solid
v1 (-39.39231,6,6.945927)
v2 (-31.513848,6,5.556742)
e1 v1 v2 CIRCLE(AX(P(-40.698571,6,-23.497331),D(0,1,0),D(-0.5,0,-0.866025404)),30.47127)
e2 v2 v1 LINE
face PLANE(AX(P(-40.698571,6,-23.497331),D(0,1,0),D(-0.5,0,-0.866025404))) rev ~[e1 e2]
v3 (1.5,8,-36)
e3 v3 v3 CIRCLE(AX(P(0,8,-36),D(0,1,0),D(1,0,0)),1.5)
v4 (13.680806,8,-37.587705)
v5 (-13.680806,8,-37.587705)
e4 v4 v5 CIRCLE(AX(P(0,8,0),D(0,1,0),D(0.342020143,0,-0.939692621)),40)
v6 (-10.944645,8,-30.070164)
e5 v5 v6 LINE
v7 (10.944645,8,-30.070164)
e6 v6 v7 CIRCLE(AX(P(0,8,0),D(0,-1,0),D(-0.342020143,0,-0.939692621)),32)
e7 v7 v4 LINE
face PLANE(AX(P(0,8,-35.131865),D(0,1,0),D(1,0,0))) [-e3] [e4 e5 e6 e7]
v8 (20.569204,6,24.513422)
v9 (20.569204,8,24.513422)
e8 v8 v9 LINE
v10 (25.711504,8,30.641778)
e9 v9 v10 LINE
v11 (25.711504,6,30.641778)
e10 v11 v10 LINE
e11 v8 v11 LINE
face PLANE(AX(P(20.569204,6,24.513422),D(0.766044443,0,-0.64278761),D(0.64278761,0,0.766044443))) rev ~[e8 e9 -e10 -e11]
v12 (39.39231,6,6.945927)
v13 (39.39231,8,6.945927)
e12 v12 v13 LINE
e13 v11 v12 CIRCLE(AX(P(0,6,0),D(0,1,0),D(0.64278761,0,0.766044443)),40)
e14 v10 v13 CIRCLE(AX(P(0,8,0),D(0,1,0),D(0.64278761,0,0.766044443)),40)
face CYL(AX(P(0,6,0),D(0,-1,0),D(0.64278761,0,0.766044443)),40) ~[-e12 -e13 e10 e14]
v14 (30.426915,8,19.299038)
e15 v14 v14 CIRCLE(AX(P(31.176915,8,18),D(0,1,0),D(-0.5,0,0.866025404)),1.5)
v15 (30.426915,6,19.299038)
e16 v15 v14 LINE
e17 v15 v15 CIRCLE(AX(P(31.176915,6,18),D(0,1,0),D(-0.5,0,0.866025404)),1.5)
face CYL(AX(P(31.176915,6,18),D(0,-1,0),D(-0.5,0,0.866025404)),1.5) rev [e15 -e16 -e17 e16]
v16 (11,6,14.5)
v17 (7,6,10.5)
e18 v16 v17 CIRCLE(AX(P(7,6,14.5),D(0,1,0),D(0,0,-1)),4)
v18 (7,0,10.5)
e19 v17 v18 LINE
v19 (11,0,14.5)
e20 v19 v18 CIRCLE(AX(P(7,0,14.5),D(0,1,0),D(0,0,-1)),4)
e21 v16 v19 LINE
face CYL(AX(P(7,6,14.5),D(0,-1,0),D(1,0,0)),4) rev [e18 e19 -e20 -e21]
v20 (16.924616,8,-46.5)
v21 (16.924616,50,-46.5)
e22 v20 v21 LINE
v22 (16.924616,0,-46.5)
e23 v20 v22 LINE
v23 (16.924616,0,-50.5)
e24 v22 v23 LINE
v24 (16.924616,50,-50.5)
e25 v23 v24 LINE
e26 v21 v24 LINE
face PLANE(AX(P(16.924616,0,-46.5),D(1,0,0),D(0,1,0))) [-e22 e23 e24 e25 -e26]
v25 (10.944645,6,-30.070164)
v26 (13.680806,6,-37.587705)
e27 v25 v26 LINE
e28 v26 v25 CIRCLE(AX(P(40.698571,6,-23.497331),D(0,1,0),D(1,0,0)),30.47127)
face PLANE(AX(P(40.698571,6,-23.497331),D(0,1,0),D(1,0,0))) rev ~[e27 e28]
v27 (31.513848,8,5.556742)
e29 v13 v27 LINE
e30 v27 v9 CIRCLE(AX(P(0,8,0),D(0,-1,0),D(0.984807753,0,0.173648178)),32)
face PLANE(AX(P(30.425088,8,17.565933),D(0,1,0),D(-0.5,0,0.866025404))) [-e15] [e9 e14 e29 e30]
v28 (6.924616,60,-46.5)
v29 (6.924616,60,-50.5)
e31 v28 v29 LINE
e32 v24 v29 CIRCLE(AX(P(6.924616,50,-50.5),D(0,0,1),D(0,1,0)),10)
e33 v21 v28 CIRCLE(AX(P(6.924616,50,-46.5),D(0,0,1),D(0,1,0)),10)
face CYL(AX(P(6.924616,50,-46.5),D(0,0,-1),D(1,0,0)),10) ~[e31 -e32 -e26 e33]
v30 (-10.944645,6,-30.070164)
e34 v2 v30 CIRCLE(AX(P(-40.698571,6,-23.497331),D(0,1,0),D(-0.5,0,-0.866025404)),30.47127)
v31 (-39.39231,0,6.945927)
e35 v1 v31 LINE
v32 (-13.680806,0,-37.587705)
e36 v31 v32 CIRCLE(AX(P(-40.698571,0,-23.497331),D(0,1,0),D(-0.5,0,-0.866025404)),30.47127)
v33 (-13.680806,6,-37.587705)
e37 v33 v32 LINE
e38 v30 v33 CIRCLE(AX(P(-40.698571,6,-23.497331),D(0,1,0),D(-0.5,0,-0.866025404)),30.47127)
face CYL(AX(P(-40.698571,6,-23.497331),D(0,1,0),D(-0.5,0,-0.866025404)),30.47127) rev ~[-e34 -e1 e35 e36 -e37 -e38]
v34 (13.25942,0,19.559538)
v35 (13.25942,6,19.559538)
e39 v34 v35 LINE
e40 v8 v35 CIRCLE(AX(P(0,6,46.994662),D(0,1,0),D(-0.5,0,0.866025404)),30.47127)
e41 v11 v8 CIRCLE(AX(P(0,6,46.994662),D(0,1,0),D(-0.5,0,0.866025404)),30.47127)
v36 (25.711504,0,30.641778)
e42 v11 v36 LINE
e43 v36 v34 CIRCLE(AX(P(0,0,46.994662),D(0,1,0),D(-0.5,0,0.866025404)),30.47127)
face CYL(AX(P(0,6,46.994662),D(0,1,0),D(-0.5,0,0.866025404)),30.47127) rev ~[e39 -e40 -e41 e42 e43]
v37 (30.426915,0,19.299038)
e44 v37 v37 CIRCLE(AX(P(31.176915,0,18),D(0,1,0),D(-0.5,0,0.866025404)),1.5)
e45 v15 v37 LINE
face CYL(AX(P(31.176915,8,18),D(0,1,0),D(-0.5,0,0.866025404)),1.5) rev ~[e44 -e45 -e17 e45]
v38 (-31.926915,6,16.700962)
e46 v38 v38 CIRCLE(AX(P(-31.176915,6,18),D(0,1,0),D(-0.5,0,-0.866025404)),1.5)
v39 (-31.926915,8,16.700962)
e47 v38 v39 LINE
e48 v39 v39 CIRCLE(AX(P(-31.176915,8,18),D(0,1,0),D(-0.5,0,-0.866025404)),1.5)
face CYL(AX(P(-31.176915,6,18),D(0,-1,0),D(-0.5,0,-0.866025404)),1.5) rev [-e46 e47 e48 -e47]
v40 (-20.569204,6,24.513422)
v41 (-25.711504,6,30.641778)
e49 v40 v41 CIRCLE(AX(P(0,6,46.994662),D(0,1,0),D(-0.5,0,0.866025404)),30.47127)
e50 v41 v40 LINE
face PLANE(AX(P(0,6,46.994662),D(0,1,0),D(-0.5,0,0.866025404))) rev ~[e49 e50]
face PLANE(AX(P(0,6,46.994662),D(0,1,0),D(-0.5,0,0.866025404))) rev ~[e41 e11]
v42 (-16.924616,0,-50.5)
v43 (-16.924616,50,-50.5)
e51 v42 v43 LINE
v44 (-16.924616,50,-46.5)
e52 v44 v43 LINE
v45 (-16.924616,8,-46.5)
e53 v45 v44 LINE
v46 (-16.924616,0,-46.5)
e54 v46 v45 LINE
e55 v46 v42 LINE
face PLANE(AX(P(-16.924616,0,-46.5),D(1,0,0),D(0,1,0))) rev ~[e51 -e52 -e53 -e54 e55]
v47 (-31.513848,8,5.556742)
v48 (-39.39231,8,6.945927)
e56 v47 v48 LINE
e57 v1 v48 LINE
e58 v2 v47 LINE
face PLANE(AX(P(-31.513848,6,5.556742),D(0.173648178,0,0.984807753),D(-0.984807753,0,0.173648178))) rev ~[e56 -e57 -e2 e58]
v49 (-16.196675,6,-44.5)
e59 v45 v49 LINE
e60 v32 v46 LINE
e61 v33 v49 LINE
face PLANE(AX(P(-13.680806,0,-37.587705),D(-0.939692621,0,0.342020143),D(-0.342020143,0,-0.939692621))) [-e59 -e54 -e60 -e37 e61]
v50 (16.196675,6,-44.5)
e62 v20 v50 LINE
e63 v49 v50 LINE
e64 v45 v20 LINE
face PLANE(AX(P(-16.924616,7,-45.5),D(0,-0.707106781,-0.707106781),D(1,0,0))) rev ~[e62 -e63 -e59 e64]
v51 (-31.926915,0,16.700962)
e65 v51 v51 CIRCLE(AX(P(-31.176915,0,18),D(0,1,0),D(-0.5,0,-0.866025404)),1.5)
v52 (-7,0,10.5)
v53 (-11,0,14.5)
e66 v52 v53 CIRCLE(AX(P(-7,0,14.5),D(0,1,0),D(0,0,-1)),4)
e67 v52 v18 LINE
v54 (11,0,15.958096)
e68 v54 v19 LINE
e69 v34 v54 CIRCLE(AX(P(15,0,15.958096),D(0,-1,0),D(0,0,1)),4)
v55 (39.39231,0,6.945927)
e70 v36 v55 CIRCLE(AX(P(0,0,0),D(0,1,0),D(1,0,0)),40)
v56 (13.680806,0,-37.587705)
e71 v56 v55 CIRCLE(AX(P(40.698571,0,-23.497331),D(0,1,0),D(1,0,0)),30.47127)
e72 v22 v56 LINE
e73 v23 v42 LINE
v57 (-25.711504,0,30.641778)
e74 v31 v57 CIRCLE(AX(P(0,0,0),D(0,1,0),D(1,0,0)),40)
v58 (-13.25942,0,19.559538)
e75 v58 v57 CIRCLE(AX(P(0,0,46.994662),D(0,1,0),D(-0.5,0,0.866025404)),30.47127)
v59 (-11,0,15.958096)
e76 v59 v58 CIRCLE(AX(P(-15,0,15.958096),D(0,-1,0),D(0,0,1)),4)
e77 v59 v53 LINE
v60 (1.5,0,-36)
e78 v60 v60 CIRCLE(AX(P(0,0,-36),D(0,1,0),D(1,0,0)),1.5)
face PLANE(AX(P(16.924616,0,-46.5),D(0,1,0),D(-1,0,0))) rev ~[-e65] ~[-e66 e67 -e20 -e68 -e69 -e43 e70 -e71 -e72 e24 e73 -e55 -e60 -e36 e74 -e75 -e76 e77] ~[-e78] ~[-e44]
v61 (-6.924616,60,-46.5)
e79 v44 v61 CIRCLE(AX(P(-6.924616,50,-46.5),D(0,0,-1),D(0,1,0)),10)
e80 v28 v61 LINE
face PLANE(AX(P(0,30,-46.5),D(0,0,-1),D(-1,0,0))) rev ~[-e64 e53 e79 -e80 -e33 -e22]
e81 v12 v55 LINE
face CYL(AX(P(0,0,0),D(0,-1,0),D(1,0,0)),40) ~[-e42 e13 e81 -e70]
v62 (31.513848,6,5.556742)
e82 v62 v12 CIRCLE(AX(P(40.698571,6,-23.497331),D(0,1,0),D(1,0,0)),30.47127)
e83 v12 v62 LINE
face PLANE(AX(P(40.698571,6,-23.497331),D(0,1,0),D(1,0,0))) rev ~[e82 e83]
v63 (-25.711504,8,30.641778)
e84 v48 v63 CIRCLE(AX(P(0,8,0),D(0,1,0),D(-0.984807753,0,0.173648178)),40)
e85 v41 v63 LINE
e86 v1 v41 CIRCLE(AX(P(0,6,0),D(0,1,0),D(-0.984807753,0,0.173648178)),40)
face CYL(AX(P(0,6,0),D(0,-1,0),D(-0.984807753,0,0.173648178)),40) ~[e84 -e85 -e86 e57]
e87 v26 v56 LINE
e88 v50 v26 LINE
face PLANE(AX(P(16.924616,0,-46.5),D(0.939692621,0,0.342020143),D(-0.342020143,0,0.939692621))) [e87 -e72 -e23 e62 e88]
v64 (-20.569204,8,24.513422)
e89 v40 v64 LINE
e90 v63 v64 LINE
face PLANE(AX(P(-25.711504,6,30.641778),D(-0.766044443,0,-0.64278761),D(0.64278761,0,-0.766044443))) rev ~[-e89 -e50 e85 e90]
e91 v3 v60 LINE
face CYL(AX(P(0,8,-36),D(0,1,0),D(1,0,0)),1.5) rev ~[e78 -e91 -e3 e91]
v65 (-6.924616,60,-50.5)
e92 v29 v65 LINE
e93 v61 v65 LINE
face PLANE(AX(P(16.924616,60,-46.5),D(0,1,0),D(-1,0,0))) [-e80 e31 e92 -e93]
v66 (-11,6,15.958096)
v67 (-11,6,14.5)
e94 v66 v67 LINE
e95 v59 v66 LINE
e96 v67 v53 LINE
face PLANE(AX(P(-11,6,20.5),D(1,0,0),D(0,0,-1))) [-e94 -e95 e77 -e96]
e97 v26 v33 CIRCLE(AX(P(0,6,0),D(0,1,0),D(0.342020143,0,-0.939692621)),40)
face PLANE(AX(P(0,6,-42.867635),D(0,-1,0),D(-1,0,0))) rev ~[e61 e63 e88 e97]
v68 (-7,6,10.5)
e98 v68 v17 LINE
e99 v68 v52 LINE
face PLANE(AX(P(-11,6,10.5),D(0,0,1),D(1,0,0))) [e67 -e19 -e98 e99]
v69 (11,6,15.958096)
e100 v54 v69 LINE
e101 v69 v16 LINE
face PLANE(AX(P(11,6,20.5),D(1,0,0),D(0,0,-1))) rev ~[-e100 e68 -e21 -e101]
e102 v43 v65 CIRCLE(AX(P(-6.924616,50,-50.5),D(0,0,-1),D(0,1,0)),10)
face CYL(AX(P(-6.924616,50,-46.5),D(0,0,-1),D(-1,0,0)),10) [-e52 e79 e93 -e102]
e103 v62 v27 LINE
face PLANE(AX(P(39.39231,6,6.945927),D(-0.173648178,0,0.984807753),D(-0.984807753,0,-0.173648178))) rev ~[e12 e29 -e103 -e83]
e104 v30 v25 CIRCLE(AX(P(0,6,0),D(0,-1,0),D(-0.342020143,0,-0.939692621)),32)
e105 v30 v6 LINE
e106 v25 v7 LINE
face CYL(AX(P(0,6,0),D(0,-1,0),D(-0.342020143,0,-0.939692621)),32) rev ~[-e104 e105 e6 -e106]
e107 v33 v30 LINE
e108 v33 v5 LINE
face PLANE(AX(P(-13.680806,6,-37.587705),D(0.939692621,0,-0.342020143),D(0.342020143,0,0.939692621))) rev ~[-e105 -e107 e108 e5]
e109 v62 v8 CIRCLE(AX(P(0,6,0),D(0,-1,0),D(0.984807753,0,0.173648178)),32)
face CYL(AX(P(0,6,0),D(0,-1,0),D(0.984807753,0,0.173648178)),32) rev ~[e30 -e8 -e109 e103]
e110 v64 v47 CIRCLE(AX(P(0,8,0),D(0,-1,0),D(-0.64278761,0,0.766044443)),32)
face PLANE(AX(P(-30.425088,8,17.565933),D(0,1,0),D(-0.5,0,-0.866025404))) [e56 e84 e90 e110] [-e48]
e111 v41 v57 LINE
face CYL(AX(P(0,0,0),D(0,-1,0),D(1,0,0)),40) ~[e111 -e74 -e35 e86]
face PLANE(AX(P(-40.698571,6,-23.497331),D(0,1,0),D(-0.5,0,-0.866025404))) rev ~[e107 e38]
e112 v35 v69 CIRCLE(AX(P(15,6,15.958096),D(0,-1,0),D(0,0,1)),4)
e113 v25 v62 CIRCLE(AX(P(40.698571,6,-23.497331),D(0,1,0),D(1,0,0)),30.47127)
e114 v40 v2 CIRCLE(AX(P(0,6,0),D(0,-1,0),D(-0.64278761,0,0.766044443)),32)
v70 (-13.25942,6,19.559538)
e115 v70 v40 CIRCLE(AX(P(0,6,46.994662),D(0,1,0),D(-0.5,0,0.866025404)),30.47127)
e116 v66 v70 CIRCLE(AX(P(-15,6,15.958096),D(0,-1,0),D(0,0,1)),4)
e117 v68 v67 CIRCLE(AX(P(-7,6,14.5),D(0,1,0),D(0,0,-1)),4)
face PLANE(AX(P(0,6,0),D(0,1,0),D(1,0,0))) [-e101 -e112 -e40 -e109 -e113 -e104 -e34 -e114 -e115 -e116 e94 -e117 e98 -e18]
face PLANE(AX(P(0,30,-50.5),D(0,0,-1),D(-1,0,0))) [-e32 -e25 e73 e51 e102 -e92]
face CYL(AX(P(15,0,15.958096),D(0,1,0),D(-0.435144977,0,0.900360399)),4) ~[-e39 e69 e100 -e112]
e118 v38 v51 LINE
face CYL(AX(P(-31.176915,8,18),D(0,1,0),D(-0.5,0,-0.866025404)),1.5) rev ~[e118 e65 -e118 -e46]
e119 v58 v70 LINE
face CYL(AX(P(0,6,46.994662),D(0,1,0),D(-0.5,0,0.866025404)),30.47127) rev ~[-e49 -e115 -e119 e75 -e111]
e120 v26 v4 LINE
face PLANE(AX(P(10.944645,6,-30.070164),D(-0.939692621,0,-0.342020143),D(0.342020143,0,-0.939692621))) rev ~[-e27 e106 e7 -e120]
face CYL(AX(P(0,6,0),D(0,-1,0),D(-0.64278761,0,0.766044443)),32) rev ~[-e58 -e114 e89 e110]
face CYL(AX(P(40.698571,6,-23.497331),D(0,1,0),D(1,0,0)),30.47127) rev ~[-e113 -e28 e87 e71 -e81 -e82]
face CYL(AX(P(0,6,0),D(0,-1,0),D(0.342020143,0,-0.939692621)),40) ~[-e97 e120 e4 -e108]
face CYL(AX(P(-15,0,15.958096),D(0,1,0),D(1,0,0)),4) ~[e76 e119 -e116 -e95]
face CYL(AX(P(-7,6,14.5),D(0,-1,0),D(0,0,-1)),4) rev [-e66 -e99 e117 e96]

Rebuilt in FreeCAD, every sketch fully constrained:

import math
import FreeCAD as App
import Part
import Sketcher
from FreeCAD import Vector
Q = App.Units.Quantity


def edges_at(feature, points):
    """Names of the edges that pass closest to the given points."""
    edges = feature.Shape.Edges
    near = lambda p: min(range(len(edges)), key=lambda i: edges[i].distToShape(Part.Vertex(*p))[0])
    return sorted({f"Edge{near(p) + 1}" for p in points})


def add_polygon(sketch, points):
    """Adds a closed chain of lines whose ends are joined by coincident constraints."""
    first, n = sketch.GeometryCount, len(points)
    for a, b in zip(points, points[1:] + points[:1]):
        sketch.addGeometry(Part.LineSegment(App.Vector(*a, 0), App.Vector(*b, 0)), False)
    for i in range(n):
        sketch.addConstraint(Sketcher.Constraint("Coincident", first + i, 2, first + (i + 1) % n, 1))

doc = App.newDocument("Part")
body = doc.addObject("PartDesign::Body", "Body")

sketch1 = body.newObject("Sketcher::SketchObject", "Sketch")
sketch1.AttachmentSupport = (doc.getObject("XZ_Plane"), [""])
sketch1.MapMode = "FlatFace"
sketch1.addGeometry(Part.Circle(Vector(0, 0, 0), Vector(0, 0, 1), 40), False)
sketch1.addConstraint(Sketcher.Constraint("Coincident", 0, 3, -1, 1))
sketch1.addConstraint(Sketcher.Constraint("Diameter", 0, Q("80 mm")))
pad1 = body.newObject("PartDesign::Pad", "Pad")
pad1.Profile = sketch1
pad1.Length = 6
pad1.Reversed = True

sketch2 = body.newObject("Sketcher::SketchObject", "Sketch001")
sketch2.AttachmentSupport = (doc.getObject("XZ_Plane"), [""])
sketch2.MapMode = "FlatFace"
sketch2.AttachmentOffset = App.Placement(Vector(0, 0, -6), App.Rotation())
sketch2.addGeometry(Part.LineSegment(Vector(-13.7, -37.6, 0), Vector(-10.9, -30.1, 0)), False)
sketch2.addGeometry(Part.ArcOfCircle(Part.Circle(Vector(0, 0, 0), Vector(0, 0, 1), 32), math.radians(-110), math.radians(-70)), False)
sketch2.addGeometry(Part.LineSegment(Vector(10.9, -30.1, 0), Vector(13.7, -37.6, 0)), False)
sketch2.addGeometry(Part.ArcOfCircle(Part.Circle(Vector(0, 0, 0), Vector(0, 0, 1), 40), math.radians(-110), math.radians(-70)), False)
sketch2.addGeometry(Part.Circle(Vector(0, -36, 0), Vector(0, 0, 1), 1.5), False)
sketch2.addConstraint(Sketcher.Constraint("Coincident", 0, 2, 1, 1))
sketch2.addConstraint(Sketcher.Constraint("Coincident", 1, 2, 2, 1))
sketch2.addConstraint(Sketcher.Constraint("Coincident", 2, 2, 3, 2))
sketch2.addConstraint(Sketcher.Constraint("Coincident", 3, 1, 0, 1))
sketch2.addConstraint(Sketcher.Constraint("Coincident", 1, 3, -1, 1))
sketch2.addConstraint(Sketcher.Constraint("Coincident", 3, 3, -1, 1))
sketch2.addConstraint(Sketcher.Constraint("PointOnObject", 4, 3, -2))
sketch2.addConstraint(Sketcher.Constraint("Horizontal", 0, 2, 1, 2))
sketch2.addConstraint(Sketcher.Constraint("Horizontal", 2, 2, 3, 1))
sketch2.addConstraint(Sketcher.Constraint("Diameter", 4, Q("3 mm")))
sketch2.addConstraint(Sketcher.Constraint("Radius", 1, Q("32 mm")))
sketch2.addConstraint(Sketcher.Constraint("Radius", 3, Q("40 mm")))
sketch2.addConstraint(Sketcher.Constraint("Angle", 0, Q("70 deg")))
sketch2.addConstraint(Sketcher.Constraint("DistanceY", 4, 3, -1, 1, Q("36 mm")))
sketch2.addConstraint(Sketcher.Constraint("DistanceX", 0, 2, 1, 2, Q("21.889289 mm")))
pad2 = body.newObject("PartDesign::Pad", "Pad001")
pad2.Profile = sketch2
pad2.Length = 2
pad2.Reversed = True

sketch3 = body.newObject("Sketcher::SketchObject", "Sketch002")
sketch3.AttachmentSupport = (doc.getObject("XZ_Plane"), [""])
sketch3.MapMode = "FlatFace"
sketch3.AttachmentOffset = App.Placement(Vector(0, 0, -8), App.Rotation())
sketch3.addGeometry(Part.Circle(Vector(0, -36, 0), Vector(0, 0, 1), 1.5), False)
sketch3.addConstraint(Sketcher.Constraint("PointOnObject", 0, 3, -2))
sketch3.addConstraint(Sketcher.Constraint("Diameter", 0, Q("3 mm")))
sketch3.addConstraint(Sketcher.Constraint("DistanceY", 0, 3, -1, 1, Q("36 mm")))
pocket1 = body.newObject("PartDesign::Pocket", "Pocket")
pocket1.Profile = sketch3
pocket1.Type = "ThroughAll"
pocket1.Reversed = True
doc.recompute()

polarpattern = body.newObject("PartDesign::PolarPattern", "PolarPattern")
polarpattern.Originals = [pad2, pocket1]
polarpattern.Axis = (doc.getObject("Y_Axis"), [""])
polarpattern.Angle = 360
polarpattern.Occurrences = 3
body.Tip = polarpattern

sketch4 = body.newObject("Sketcher::SketchObject", "Sketch003")
sketch4.AttachmentSupport = (doc.getObject("XZ_Plane"), [""])
sketch4.MapMode = "FlatFace"
sketch4.AttachmentOffset = App.Placement(Vector(0, 0, -6), App.Rotation())
sketch4.addGeometry(Part.Circle(Vector(41, -23, 0), Vector(0, 0, 1), 30), False)
sketch4.addConstraint(Sketcher.Constraint("Diameter", 0, Q("60.94254 mm")))
sketch4.addConstraint(Sketcher.Constraint("DistanceX", -1, 1, 0, 3, Q("40.698571 mm")))
sketch4.addConstraint(Sketcher.Constraint("DistanceY", 0, 3, -1, 1, Q("23.497331 mm")))
pocket2 = body.newObject("PartDesign::Pocket", "Pocket001")
pocket2.Profile = sketch4
pocket2.Type = "ThroughAll"
pocket2.Reversed = True
doc.recompute()

polarpattern2 = body.newObject("PartDesign::PolarPattern", "PolarPattern001")
polarpattern2.Originals = [pocket2]
polarpattern2.Axis = (doc.getObject("Y_Axis"), [""])
polarpattern2.Angle = 360
polarpattern2.Occurrences = 3
body.Tip = polarpattern2

sketch5 = body.newObject("Sketcher::SketchObject", "Sketch004")
sketch5.AttachmentSupport = (doc.getObject("XZ_Plane"), [""])
sketch5.MapMode = "FlatFace"
sketch5.addGeometry(Part.LineSegment(Vector(-17, -46, 0), Vector(-14, -38, 0)), False)
sketch5.addGeometry(Part.ArcOfCircle(Part.Circle(Vector(0, 0, 0), Vector(0, 0, 1), 40), math.radians(-110), math.radians(-70)), False)
sketch5.addGeometry(Part.LineSegment(Vector(14, -38, 0), Vector(17, -46, 0)), False)
sketch5.addGeometry(Part.LineSegment(Vector(17, -46, 0), Vector(-17, -46, 0)), False)
sketch5.addConstraint(Sketcher.Constraint("Coincident", 0, 2, 1, 1))
sketch5.addConstraint(Sketcher.Constraint("Coincident", 1, 2, 2, 1))
sketch5.addConstraint(Sketcher.Constraint("Coincident", 2, 2, 3, 1))
sketch5.addConstraint(Sketcher.Constraint("Coincident", 3, 2, 0, 1))
sketch5.addConstraint(Sketcher.Constraint("Horizontal", 3))
sketch5.addConstraint(Sketcher.Constraint("Coincident", 1, 3, -1, 1))
sketch5.addConstraint(Sketcher.Constraint("Horizontal", 0, 2, 1, 2))
sketch5.addConstraint(Sketcher.Constraint("Equal", 0, 2))
sketch5.addConstraint(Sketcher.Constraint("Radius", 1, Q("40 mm")))
sketch5.addConstraint(Sketcher.Constraint("Angle", 0, Q("70 deg")))
sketch5.addConstraint(Sketcher.Constraint("DistanceY", 2, 2, -1, 1, Q("46.5 mm")))
sketch5.addConstraint(Sketcher.Constraint("DistanceX", 3, 2, 3, 1, Q("33.849232 mm")))
pad3 = body.newObject("PartDesign::Pad", "Pad002")
pad3.Profile = sketch5
pad3.Length = 6
pad3.Reversed = True

sketch6 = body.newObject("Sketcher::SketchObject", "Sketch005")
sketch6.AttachmentSupport = (doc.getObject("XY_Plane"), [""])
sketch6.MapMode = "FlatFace"
sketch6.AttachmentOffset = App.Placement(Vector(0, 0, -46.5), App.Rotation())
add_polygon(sketch6, [(17, 60), (17, 0), (-17, 0), (-17, 60)])
sketch6.addConstraint(Sketcher.Constraint("Vertical", 0))
sketch6.addConstraint(Sketcher.Constraint("Horizontal", 1))
sketch6.addConstraint(Sketcher.Constraint("Vertical", 2))
sketch6.addConstraint(Sketcher.Constraint("Horizontal", 3))
sketch6.addConstraint(Sketcher.Constraint("Symmetric", 0, 2, 1, 2, -1, 1))
sketch6.addConstraint(Sketcher.Constraint("DistanceY", 0, 2, 0, 1, Q("60 mm")))
sketch6.addConstraint(Sketcher.Constraint("DistanceX", 1, 2, 1, 1, Q("33.849232 mm")))
pad4 = body.newObject("PartDesign::Pad", "Pad003")
pad4.Profile = sketch6
pad4.Length = 4
pad4.Reversed = True
doc.recompute()

chamfer = body.newObject("PartDesign::Chamfer", "Chamfer")
chamfer.Base = (pad4, edges_at(pad4, [(0, 6, -46.5)]))
chamfer.Size = 2

sketch7 = body.newObject("Sketcher::SketchObject", "Sketch006")
sketch7.AttachmentSupport = (doc.getObject("XZ_Plane"), [""])
sketch7.MapMode = "FlatFace"
sketch7.AttachmentOffset = App.Placement(Vector(0, 0, -6), App.Rotation())
add_polygon(sketch7, [(-11, 10), (-11, 20), (11, 20), (11, 10)])
sketch7.addConstraint(Sketcher.Constraint("Vertical", 0))
sketch7.addConstraint(Sketcher.Constraint("Horizontal", 1))
sketch7.addConstraint(Sketcher.Constraint("Vertical", 2))
sketch7.addConstraint(Sketcher.Constraint("Horizontal", 3))
sketch7.addConstraint(Sketcher.Constraint("DistanceX", 1, 1, 1, 2, Q("22 mm")))
sketch7.addConstraint(Sketcher.Constraint("DistanceY", 0, 1, 0, 2, Q("10 mm")))
sketch7.addConstraint(Sketcher.Constraint("DistanceX", 0, 2, -1, 1, Q("11 mm")))
sketch7.addConstraint(Sketcher.Constraint("DistanceY", -1, 1, 0, 2, Q("20.5 mm")))
pocket3 = body.newObject("PartDesign::Pocket", "Pocket002")
pocket3.Profile = sketch7
pocket3.Length = 25
pocket3.Reversed = True
doc.recompute()

fillet = body.newObject("PartDesign::Fillet", "Fillet")
fillet.Base = (pocket3, edges_at(pocket3, [
    (-11, 3, 18.578),
    (11, 3, 18.578),
    (-11, 3, 10.5),
    (11, 3, 10.5),
]))
fillet.Radius = 4
doc.recompute()

fillet2 = body.newObject("PartDesign::Fillet", "Fillet001")
fillet2.Base = (fillet, edges_at(fillet, [(16.925, 60, -48.5), (-16.925, 60, -48.5)]))
fillet2.Radius = 10

doc.recompute()
